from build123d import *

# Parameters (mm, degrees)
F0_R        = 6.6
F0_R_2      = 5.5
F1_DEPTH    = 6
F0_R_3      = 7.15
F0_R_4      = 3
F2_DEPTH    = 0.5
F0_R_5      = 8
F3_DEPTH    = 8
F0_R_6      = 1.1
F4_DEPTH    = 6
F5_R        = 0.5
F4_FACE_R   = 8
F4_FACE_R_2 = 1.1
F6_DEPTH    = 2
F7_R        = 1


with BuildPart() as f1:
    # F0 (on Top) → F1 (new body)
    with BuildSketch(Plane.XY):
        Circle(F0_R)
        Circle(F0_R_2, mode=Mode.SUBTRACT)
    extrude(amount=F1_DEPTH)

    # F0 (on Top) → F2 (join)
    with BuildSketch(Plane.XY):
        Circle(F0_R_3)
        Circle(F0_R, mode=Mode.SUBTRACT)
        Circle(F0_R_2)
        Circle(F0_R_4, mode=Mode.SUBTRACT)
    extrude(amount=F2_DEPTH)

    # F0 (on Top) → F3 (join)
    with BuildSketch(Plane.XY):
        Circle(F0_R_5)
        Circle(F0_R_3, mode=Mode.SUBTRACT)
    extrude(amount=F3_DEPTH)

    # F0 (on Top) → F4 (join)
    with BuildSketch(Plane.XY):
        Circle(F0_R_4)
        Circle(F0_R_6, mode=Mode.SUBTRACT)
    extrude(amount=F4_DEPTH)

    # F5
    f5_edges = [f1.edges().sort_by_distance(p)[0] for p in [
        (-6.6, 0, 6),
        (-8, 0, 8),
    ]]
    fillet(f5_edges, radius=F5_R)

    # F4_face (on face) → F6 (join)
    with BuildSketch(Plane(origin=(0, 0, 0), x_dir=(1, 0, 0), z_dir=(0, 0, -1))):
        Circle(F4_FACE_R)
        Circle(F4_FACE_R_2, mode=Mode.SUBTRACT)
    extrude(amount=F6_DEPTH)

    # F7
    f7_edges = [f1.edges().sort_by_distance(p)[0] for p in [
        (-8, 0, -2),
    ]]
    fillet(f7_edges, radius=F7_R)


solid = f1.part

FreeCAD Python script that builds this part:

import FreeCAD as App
import Part
import Sketcher
Q = App.Units.Quantity


def edges_at(feature, points):
    """Names of the edges that pass closest to the given points."""
    edges = feature.Shape.Edges
    near = lambda p: min(range(len(edges)), key=lambda i: edges[i].distToShape(Part.Vertex(*p))[0])
    return sorted({f"Edge{near(p) + 1}" for p in points})

doc = App.newDocument("Part")
body = doc.addObject("PartDesign::Body", "Body")

sketch1 = doc.addObject("Sketcher::SketchObject", "Sketch")
body.addObject(sketch1)
sketch1.AttachmentSupport = (doc.XY_Plane, [""])
sketch1.MapMode = "FlatFace"
sketch1.addGeometry([
    Part.Circle(App.Vector(0, 0, 0), App.Vector(0, 0, 1), 6.6),
    Part.Circle(App.Vector(0, 0, 0), App.Vector(0, 0, 1), 5.5),
], False)
sketch1.addConstraint([
    Sketcher.Constraint("Coincident", 0, 3, -1, 1),
    Sketcher.Constraint("Coincident", 1, 3, -1, 1),
    Sketcher.Constraint("Diameter", 1, Q("11 mm")),
    Sketcher.Constraint("Diameter", 0, Q("13.2 mm")),
])
pad1 = doc.addObject("PartDesign::Pad", "Pad")
body.addObject(pad1)
pad1.Profile = sketch1
pad1.Length = 6

sketch2 = doc.addObject("Sketcher::SketchObject", "Sketch001")
body.addObject(sketch2)
sketch2.AttachmentSupport = (doc.XY_Plane, [""])
sketch2.MapMode = "FlatFace"
sketch2.addGeometry([
    Part.Circle(App.Vector(0, 0, 0), App.Vector(0, 0, 1), 7.15),
    Part.Circle(App.Vector(0, 0, 0), App.Vector(0, 0, 1), 6.6),
    Part.Circle(App.Vector(0, 0, 0), App.Vector(0, 0, 1), 5.5),
    Part.Circle(App.Vector(0, 0, 0), App.Vector(0, 0, 1), 3),
], False)
sketch2.addConstraint([
    Sketcher.Constraint("Coincident", 0, 3, -1, 1),
    Sketcher.Constraint("Coincident", 1, 3, -1, 1),
    Sketcher.Constraint("Coincident", 2, 3, -1, 1),
    Sketcher.Constraint("Coincident", 3, 3, -1, 1),
    Sketcher.Constraint("Diameter", 2, Q("11 mm")),
    Sketcher.Constraint("Diameter", 3, Q("6 mm")),
    Sketcher.Constraint("Diameter", 0, Q("14.3 mm")),
    Sketcher.Constraint("Diameter", 1, Q("13.2 mm")),
])
pad2 = doc.addObject("PartDesign::Pad", "Pad001")
body.addObject(pad2)
pad2.Profile = sketch2
pad2.Length = 0.5

sketch3 = doc.addObject("Sketcher::SketchObject", "Sketch002")
body.addObject(sketch3)
sketch3.AttachmentSupport = (doc.XY_Plane, [""])
sketch3.MapMode = "FlatFace"
sketch3.addGeometry([
    Part.Circle(App.Vector(0, 0, 0), App.Vector(0, 0, 1), 8),
    Part.Circle(App.Vector(0, 0, 0), App.Vector(0, 0, 1), 7.15),
], False)
sketch3.addConstraint([
    Sketcher.Constraint("Coincident", 0, 3, -1, 1),
    Sketcher.Constraint("Coincident", 1, 3, -1, 1),
    Sketcher.Constraint("Diameter", 0, Q("16 mm")),
    Sketcher.Constraint("Diameter", 1, Q("14.3 mm")),
])
pad3 = doc.addObject("PartDesign::Pad", "Pad002")
body.addObject(pad3)
pad3.Profile = sketch3
pad3.Length = 8

sketch4 = doc.addObject("Sketcher::SketchObject", "Sketch003")
body.addObject(sketch4)
sketch4.AttachmentSupport = (doc.XY_Plane, [""])
sketch4.MapMode = "FlatFace"
sketch4.addGeometry([
    Part.Circle(App.Vector(0, 0, 0), App.Vector(0, 0, 1), 3),
    Part.Circle(App.Vector(0, 0, 0), App.Vector(0, 0, 1), 1.1),
], False)
sketch4.addConstraint([
    Sketcher.Constraint("Coincident", 0, 3, -1, 1),
    Sketcher.Constraint("Coincident", 1, 3, -1, 1),
    Sketcher.Constraint("Diameter", 0, Q("6 mm")),
    Sketcher.Constraint("Diameter", 1, Q("2.2 mm")),
])
pad4 = doc.addObject("PartDesign::Pad", "Pad003")
body.addObject(pad4)
pad4.Profile = sketch4
pad4.Length = 6
doc.recompute()

fillet = doc.addObject("PartDesign::Fillet", "Fillet")
body.addObject(fillet)
fillet.Base = (pad4, edges_at(pad4, [(-6.6, 0, 6), (-8, 0, 8)]))
fillet.Radius = 0.5

sketch5 = doc.addObject("Sketcher::SketchObject", "Sketch004")
body.addObject(sketch5)
sketch5.AttachmentSupport = (doc.XY_Plane, [""])
sketch5.MapMode = "FlatFace"
sketch5.addGeometry([
    Part.Circle(App.Vector(0, 0, 0), App.Vector(0, 0, 1), 8),
    Part.Circle(App.Vector(0, 0, 0), App.Vector(0, 0, 1), 1.1),
], False)
sketch5.addConstraint([
    Sketcher.Constraint("Coincident", 0, 3, -1, 1),
    Sketcher.Constraint("Coincident", 1, 3, -1, 1),
    Sketcher.Constraint("Diameter", 0, Q("16 mm")),
    Sketcher.Constraint("Diameter", 1, Q("2.2 mm")),
])
pad5 = doc.addObject("PartDesign::Pad", "Pad004")
body.addObject(pad5)
pad5.Profile = sketch5
pad5.Length = 2
pad5.Reversed = True
doc.recompute()

fillet2 = doc.addObject("PartDesign::Fillet", "Fillet001")
body.addObject(fillet2)
fillet2.Base = (pad5, edges_at(pad5, [(-8, 0, -2)]))
fillet2.Radius = 1

doc.recompute()
